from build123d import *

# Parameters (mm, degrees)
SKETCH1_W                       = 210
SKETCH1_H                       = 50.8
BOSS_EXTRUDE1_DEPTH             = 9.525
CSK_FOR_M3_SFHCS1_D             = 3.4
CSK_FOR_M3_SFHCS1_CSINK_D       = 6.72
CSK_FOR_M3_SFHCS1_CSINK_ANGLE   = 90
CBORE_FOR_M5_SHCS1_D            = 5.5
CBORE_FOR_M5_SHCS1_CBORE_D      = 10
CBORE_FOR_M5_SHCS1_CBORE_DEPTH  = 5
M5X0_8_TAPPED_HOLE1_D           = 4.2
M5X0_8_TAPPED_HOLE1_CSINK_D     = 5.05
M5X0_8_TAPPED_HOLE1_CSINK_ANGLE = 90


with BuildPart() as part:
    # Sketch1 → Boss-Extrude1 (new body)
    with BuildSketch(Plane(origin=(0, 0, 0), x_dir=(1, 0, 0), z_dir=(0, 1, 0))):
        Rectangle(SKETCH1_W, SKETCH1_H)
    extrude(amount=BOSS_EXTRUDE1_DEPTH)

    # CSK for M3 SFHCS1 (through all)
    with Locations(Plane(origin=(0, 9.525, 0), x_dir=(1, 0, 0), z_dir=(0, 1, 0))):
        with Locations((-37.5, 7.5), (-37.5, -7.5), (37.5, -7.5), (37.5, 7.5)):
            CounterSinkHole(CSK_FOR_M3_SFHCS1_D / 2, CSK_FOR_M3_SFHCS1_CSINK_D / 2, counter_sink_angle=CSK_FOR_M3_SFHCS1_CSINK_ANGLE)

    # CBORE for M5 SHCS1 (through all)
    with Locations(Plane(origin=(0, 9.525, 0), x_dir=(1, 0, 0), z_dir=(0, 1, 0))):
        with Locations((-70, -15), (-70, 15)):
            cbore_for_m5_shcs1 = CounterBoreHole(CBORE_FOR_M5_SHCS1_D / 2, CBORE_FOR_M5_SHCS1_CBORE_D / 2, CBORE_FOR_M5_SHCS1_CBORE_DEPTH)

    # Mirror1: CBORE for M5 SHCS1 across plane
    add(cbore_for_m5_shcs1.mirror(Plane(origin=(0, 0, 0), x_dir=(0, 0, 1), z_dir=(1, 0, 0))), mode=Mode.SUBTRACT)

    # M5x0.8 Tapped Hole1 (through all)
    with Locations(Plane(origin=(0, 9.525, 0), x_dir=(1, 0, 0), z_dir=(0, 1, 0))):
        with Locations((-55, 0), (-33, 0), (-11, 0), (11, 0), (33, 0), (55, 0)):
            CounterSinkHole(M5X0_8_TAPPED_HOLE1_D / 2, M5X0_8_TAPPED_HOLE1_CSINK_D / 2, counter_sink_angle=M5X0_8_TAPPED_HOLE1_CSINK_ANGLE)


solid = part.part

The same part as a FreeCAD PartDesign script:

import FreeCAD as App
import Part
import Sketcher


def add_polygon(sketch, points):
    """Adds a closed chain of lines whose ends are joined by coincident constraints."""
    first, n = sketch.GeometryCount, len(points)
    for a, b in zip(points, points[1:] + points[:1]):
        sketch.addGeometry(Part.LineSegment(App.Vector(*a, 0), App.Vector(*b, 0)), False)
    for i in range(n):
        sketch.addConstraint(Sketcher.Constraint("Coincident", first + i, 2, first + (i + 1) % n, 1))

doc = App.newDocument("Part")
body = doc.addObject("PartDesign::Body", "Body")

sketch1 = body.newObject("Sketcher::SketchObject", "Sketch")
sketch1.AttachmentSupport = (doc.getObject("XZ_Plane"), [""])
sketch1.MapMode = "FlatFace"
add_polygon(sketch1, [(-105, -25.4), (-105, 25.4), (105, 25.4), (105, -25.4)])
sketch1.addConstraint(Sketcher.Constraint("Vertical", 0))
sketch1.addConstraint(Sketcher.Constraint("Horizontal", 1))
sketch1.addConstraint(Sketcher.Constraint("Vertical", 2))
sketch1.addConstraint(Sketcher.Constraint("Horizontal", 3))
sketch1.addConstraint(Sketcher.Constraint("Symmetric", 0, 2, 2, 2, -1, 1))
sketch1.addConstraint(Sketcher.Constraint("DistanceX", 1, 1, 1, 2, 210.0))
sketch1.addConstraint(Sketcher.Constraint("DistanceY", 0, 1, 0, 2, 50.8))
pad1 = body.newObject("PartDesign::Pad", "Pad")
pad1.Profile = sketch1
pad1.Length = 9.525
pad1.Reversed = True

sketch2 = body.newObject("Sketcher::SketchObject", "Sketch001")
sketch2.AttachmentSupport = (doc.getObject("XZ_Plane"), [""])
sketch2.MapMode = "FlatFace"
sketch2.AttachmentOffset = App.Placement(App.Vector(0, 0, -9.525), App.Rotation())
sketch2.addGeometry(Part.Circle(App.Vector(-37.5, -7.5, 0), App.Vector(0, 0, 1), 1.7), False)
sketch2.addGeometry(Part.Circle(App.Vector(-37.5, 7.5, 0), App.Vector(0, 0, 1), 1.7), False)
sketch2.addGeometry(Part.Circle(App.Vector(37.5, 7.5, 0), App.Vector(0, 0, 1), 1.7), False)
sketch2.addGeometry(Part.Circle(App.Vector(37.5, -7.5, 0), App.Vector(0, 0, 1), 1.7), False)
sketch2.addConstraint(Sketcher.Constraint("Equal", 0, 1))
sketch2.addConstraint(Sketcher.Constraint("Equal", 1, 2))
sketch2.addConstraint(Sketcher.Constraint("Equal", 2, 3))
sketch2.addConstraint(Sketcher.Constraint("Symmetric", 0, 3, 2, 3, -1, 1))
sketch2.addConstraint(Sketcher.Constraint("Symmetric", 1, 3, 3, 3, -1, 1))
sketch2.addConstraint(Sketcher.Constraint("Symmetric", 1, 3, 2, 3, -2))
sketch2.addConstraint(Sketcher.Constraint("Diameter", 0, 3.4))
sketch2.addConstraint(Sketcher.Constraint("DistanceY", 0, 3, 1, 3, 15.0))
sketch2.addConstraint(Sketcher.Constraint("DistanceX", 1, 3, 2, 3, 75.0))
doc.recompute()
hole = body.newObject("PartDesign::Hole", "Hole")
hole.Profile = sketch2
hole.ThreadType = "None"
hole.Diameter = 3.4
hole.DepthType = "ThroughAll"
hole.HoleCutType = "Countersink"
hole.HoleCutDiameter = 6.72
hole.HoleCutCountersinkAngle = 90
hole.Reversed = True

sketch3 = body.newObject("Sketcher::SketchObject", "Sketch002")
sketch3.AttachmentSupport = (doc.getObject("XZ_Plane"), [""])
sketch3.MapMode = "FlatFace"
sketch3.AttachmentOffset = App.Placement(App.Vector(0, 0, -9.525), App.Rotation())
sketch3.addGeometry(Part.Circle(App.Vector(-70, 15, 0), App.Vector(0, 0, 1), 2.75), False)
sketch3.addGeometry(Part.Circle(App.Vector(-70, -15, 0), App.Vector(0, 0, 1), 2.75), False)
sketch3.addConstraint(Sketcher.Constraint("Equal", 0, 1))
sketch3.addConstraint(Sketcher.Constraint("Symmetric", 0, 3, 1, 3, -1))
sketch3.addConstraint(Sketcher.Constraint("Diameter", 0, 5.5))
sketch3.addConstraint(Sketcher.Constraint("DistanceX", 0, 3, -1, 1, 70.0))
sketch3.addConstraint(Sketcher.Constraint("DistanceY", -1, 1, 0, 3, 15.0))
doc.recompute()
hole2 = body.newObject("PartDesign::Hole", "Hole001")
hole2.Profile = sketch3
hole2.ThreadType = "None"
hole2.Diameter = 5.5
hole2.DepthType = "ThroughAll"
hole2.HoleCutType = "Counterbore"
hole2.HoleCutDiameter = 10
hole2.HoleCutDepth = 5
hole2.Reversed = True
doc.recompute()

mirrored = body.newObject("PartDesign::Mirrored", "Mirrored")
mirrored.Originals = [hole2]
mirrored.MirrorPlane = (doc.getObject("YZ_Plane"), [""])
body.Tip = mirrored

sketch4 = body.newObject("Sketcher::SketchObject", "Sketch003")
sketch4.AttachmentSupport = (doc.getObject("XZ_Plane"), [""])
sketch4.MapMode = "FlatFace"
sketch4.AttachmentOffset = App.Placement(App.Vector(0, 0, -9.525), App.Rotation())
sketch4.addGeometry(Part.Circle(App.Vector(-55, 0, 0), App.Vector(0, 0, 1), 2.1), False)
sketch4.addGeometry(Part.Circle(App.Vector(-33, 0, 0), App.Vector(0, 0, 1), 2.1), False)
sketch4.addGeometry(Part.Circle(App.Vector(-11, 0, 0), App.Vector(0, 0, 1), 2.1), False)
sketch4.addGeometry(Part.Circle(App.Vector(11, 0, 0), App.Vector(0, 0, 1), 2.1), False)
sketch4.addGeometry(Part.Circle(App.Vector(33, 0, 0), App.Vector(0, 0, 1), 2.1), False)
sketch4.addGeometry(Part.Circle(App.Vector(55, 0, 0), App.Vector(0, 0, 1), 2.1), False)
sketch4.addConstraint(Sketcher.Constraint("Equal", 0, 1))
sketch4.addConstraint(Sketcher.Constraint("Equal", 1, 2))
sketch4.addConstraint(Sketcher.Constraint("Equal", 2, 3))
sketch4.addConstraint(Sketcher.Constraint("Equal", 3, 4))
sketch4.addConstraint(Sketcher.Constraint("Equal", 4, 5))
sketch4.addConstraint(Sketcher.Constraint("Symmetric", 2, 3, 3, 3, -1, 1))
sketch4.addConstraint(Sketcher.Constraint("Symmetric", 1, 3, 4, 3, -1, 1))
sketch4.addConstraint(Sketcher.Constraint("Symmetric", 0, 3, 5, 3, -1, 1))
sketch4.addConstraint(Sketcher.Constraint("PointOnObject", 0, 3, -1))
sketch4.addConstraint(Sketcher.Constraint("PointOnObject", 1, 3, -1))
sketch4.addConstraint(Sketcher.Constraint("PointOnObject", 2, 3, -1))
sketch4.addConstraint(Sketcher.Constraint("Diameter", 0, 4.2))
sketch4.addConstraint(Sketcher.Constraint("DistanceX", 0, 3, -1, 1, 55.0))
sketch4.addConstraint(Sketcher.Constraint("DistanceX", 1, 3, -1, 1, 33.0))
sketch4.addConstraint(Sketcher.Constraint("DistanceX", 2, 3, -1, 1, 11.0))
doc.recompute()
hole3 = body.newObject("PartDesign::Hole", "Hole002")
hole3.Profile = sketch4
hole3.ThreadType = "None"
hole3.Diameter = 4.2
hole3.DepthType = "ThroughAll"
hole3.HoleCutType = "Countersink"
hole3.HoleCutDiameter = 5.05
hole3.HoleCutCountersinkAngle = 90
hole3.Reversed = True

doc.recompute()
